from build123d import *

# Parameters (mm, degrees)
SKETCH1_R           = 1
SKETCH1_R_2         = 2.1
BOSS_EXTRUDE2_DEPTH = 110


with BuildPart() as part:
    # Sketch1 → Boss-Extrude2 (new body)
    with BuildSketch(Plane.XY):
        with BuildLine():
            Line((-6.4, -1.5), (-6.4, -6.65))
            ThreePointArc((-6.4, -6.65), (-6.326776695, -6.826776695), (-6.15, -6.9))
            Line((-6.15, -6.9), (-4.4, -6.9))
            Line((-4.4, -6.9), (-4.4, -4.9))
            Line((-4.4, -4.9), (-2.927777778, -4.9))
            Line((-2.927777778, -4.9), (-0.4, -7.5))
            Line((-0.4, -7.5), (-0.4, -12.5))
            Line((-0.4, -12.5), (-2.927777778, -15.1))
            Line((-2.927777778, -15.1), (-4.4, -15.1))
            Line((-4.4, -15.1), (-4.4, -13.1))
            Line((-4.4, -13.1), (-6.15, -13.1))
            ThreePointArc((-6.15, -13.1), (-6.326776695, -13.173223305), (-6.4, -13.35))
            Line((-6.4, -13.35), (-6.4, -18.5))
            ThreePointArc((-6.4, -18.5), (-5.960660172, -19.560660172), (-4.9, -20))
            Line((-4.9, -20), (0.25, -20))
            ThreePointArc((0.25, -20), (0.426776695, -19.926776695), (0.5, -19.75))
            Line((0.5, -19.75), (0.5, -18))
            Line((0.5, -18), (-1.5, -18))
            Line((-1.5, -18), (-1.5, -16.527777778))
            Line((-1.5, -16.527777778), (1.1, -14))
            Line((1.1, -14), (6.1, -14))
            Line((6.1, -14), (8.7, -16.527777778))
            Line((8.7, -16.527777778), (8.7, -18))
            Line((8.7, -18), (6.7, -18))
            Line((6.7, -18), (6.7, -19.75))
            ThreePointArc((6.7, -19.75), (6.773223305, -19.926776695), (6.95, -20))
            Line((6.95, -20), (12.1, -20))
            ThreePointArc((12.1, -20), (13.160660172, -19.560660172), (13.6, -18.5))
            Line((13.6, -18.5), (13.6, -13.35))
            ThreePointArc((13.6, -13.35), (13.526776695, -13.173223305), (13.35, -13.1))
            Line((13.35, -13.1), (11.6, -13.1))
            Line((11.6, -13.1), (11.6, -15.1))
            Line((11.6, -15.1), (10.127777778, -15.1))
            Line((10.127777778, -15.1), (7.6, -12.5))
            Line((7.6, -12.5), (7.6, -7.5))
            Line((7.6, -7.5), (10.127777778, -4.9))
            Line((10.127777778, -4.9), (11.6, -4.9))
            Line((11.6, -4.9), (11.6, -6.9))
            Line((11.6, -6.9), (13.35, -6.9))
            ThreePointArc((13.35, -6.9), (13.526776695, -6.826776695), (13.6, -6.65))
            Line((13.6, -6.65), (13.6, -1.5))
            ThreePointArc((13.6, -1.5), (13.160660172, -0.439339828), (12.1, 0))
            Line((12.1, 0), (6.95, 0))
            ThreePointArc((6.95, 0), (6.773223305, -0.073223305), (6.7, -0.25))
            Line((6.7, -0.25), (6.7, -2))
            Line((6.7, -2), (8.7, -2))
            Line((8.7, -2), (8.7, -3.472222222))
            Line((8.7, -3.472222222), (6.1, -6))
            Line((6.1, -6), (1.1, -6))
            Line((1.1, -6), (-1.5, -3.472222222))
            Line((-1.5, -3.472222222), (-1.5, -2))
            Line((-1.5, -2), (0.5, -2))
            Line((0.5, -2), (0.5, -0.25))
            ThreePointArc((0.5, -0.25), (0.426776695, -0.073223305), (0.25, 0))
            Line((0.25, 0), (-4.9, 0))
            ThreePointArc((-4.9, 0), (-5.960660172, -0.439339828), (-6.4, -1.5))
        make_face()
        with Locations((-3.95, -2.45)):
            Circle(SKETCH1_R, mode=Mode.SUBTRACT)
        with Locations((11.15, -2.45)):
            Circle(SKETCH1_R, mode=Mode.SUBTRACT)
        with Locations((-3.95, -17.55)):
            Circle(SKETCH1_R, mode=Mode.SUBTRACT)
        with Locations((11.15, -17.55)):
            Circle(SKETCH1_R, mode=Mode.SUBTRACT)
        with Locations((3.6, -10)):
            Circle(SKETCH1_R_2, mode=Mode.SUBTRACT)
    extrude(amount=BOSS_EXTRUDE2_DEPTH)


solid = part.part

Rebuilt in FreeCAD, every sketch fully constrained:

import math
import FreeCAD as App
import Part
import Sketcher

V = App.Vector
Q = App.Units.Quantity

doc = App.newDocument("Part")
body = doc.addObject("PartDesign::Body", "Body")

sketch1 = body.newObject("Sketcher::SketchObject", "Sketch")
sketch1.AttachmentSupport = (doc.getObject("XY_Plane"), [""])
sketch1.MapMode = "FlatFace"
sketch1.addGeometry([
    Part.LineSegment(V(-6.4, -1.5, 0), V(-6.4, -6.65, 0)),
    Part.ArcOfCircle(Part.Circle(V(-6.15, -6.65, 0), V(0, 0, 1), 0.25), math.radians(-180), math.radians(-90)),
    Part.LineSegment(V(-6.15, -6.9, 0), V(-4.4, -6.9, 0)),
    Part.LineSegment(V(-4.4, -6.9, 0), V(-4.4, -4.9, 0)),
    Part.LineSegment(V(-4.4, -4.9, 0), V(-2.93, -4.9, 0)),
    Part.LineSegment(V(-2.93, -4.9, 0), V(-0.4, -7.5, 0)),
    Part.LineSegment(V(-0.4, -7.5, 0), V(-0.4, -12.5, 0)),
    Part.LineSegment(V(-0.4, -12.5, 0), V(-2.93, -15.1, 0)),
    Part.LineSegment(V(-2.93, -15.1, 0), V(-4.4, -15.1, 0)),
    Part.LineSegment(V(-4.4, -15.1, 0), V(-4.4, -13.1, 0)),
    Part.LineSegment(V(-4.4, -13.1, 0), V(-6.15, -13.1, 0)),
    Part.ArcOfCircle(Part.Circle(V(-6.15, -13.35, 0), V(0, 0, 1), 0.25), math.radians(90), math.radians(180)),
    Part.LineSegment(V(-6.4, -13.35, 0), V(-6.4, -18.5, 0)),
    Part.ArcOfCircle(Part.Circle(V(-4.9, -18.5, 0), V(0, 0, 1), 1.5), math.radians(180), math.radians(270)),
    Part.LineSegment(V(-4.9, -20, 0), V(0.25, -20, 0)),
    Part.ArcOfCircle(Part.Circle(V(0.25, -19.75, 0), V(0, 0, 1), 0.25), math.radians(-90), math.radians(0)),
    Part.LineSegment(V(0.5, -19.75, 0), V(0.5, -18, 0)),
    Part.LineSegment(V(0.5, -18, 0), V(-1.5, -18, 0)),
    Part.LineSegment(V(-1.5, -18, 0), V(-1.5, -16.53, 0)),
    Part.LineSegment(V(-1.5, -16.53, 0), V(1.1, -14, 0)),
    Part.LineSegment(V(1.1, -14, 0), V(6.1, -14, 0)),
    Part.LineSegment(V(6.1, -14, 0), V(8.7, -16.53, 0)),
    Part.LineSegment(V(8.7, -16.53, 0), V(8.7, -18, 0)),
    Part.LineSegment(V(8.7, -18, 0), V(6.7, -18, 0)),
    Part.LineSegment(V(6.7, -18, 0), V(6.7, -19.75, 0)),
    Part.ArcOfCircle(Part.Circle(V(6.95, -19.75, 0), V(0, 0, 1), 0.25), math.radians(-180), math.radians(-90)),
    Part.LineSegment(V(6.95, -20, 0), V(12.1, -20, 0)),
    Part.ArcOfCircle(Part.Circle(V(12.1, -18.5, 0), V(0, 0, 1), 1.5), math.radians(-90), math.radians(0)),
    Part.LineSegment(V(13.6, -18.5, 0), V(13.6, -13.35, 0)),
    Part.ArcOfCircle(Part.Circle(V(13.35, -13.35, 0), V(0, 0, 1), 0.25), math.radians(0), math.radians(90)),
    Part.LineSegment(V(13.35, -13.1, 0), V(11.6, -13.1, 0)),
    Part.LineSegment(V(11.6, -13.1, 0), V(11.6, -15.1, 0)),
    Part.LineSegment(V(11.6, -15.1, 0), V(10.13, -15.1, 0)),
    Part.LineSegment(V(10.13, -15.1, 0), V(7.6, -12.5, 0)),
    Part.LineSegment(V(7.6, -12.5, 0), V(7.6, -7.5, 0)),
    Part.LineSegment(V(7.6, -7.5, 0), V(10.13, -4.9, 0)),
    Part.LineSegment(V(10.13, -4.9, 0), V(11.6, -4.9, 0)),
    Part.LineSegment(V(11.6, -4.9, 0), V(11.6, -6.9, 0)),
    Part.LineSegment(V(11.6, -6.9, 0), V(13.35, -6.9, 0)),
    Part.ArcOfCircle(Part.Circle(V(13.35, -6.65, 0), V(0, 0, 1), 0.25), math.radians(-90), math.radians(0)),
    Part.LineSegment(V(13.6, -6.65, 0), V(13.6, -1.5, 0)),
    Part.ArcOfCircle(Part.Circle(V(12.1, -1.5, 0), V(0, 0, 1), 1.5), math.radians(0), math.radians(90)),
    Part.LineSegment(V(12.1, 0, 0), V(6.95, 0, 0)),
    Part.ArcOfCircle(Part.Circle(V(6.95, -0.25, 0), V(0, 0, 1), 0.25), math.radians(90), math.radians(180)),
    Part.LineSegment(V(6.7, -0.25, 0), V(6.7, -2, 0)),
    Part.LineSegment(V(6.7, -2, 0), V(8.7, -2, 0)),
    Part.LineSegment(V(8.7, -2, 0), V(8.7, -3.47, 0)),
    Part.LineSegment(V(8.7, -3.47, 0), V(6.1, -6, 0)),
    Part.LineSegment(V(6.1, -6, 0), V(1.1, -6, 0)),
    Part.LineSegment(V(1.1, -6, 0), V(-1.5, -3.47, 0)),
    Part.LineSegment(V(-1.5, -3.47, 0), V(-1.5, -2, 0)),
    Part.LineSegment(V(-1.5, -2, 0), V(0.5, -2, 0)),
    Part.LineSegment(V(0.5, -2, 0), V(0.5, -0.25, 0)),
    Part.ArcOfCircle(Part.Circle(V(0.25, -0.25, 0), V(0, 0, 1), 0.25), math.radians(0), math.radians(90)),
    Part.LineSegment(V(0.25, 0, 0), V(-4.9, 0, 0)),
    Part.ArcOfCircle(Part.Circle(V(-4.9, -1.5, 0), V(0, 0, 1), 1.5), math.radians(90), math.radians(180)),
    Part.Circle(V(-3.95, -17.55, 0), V(0, 0, 1), 1),
    Part.Circle(V(11.15, -17.55, 0), V(0, 0, 1), 1),
    Part.Circle(V(3.6, -10, 0), V(0, 0, 1), 2.1),
    Part.Circle(V(-3.95, -2.45, 0), V(0, 0, 1), 1),
    Part.Circle(V(11.15, -2.45, 0), V(0, 0, 1), 1),
], False)
sketch1.addConstraint([
    Sketcher.Constraint("Tangent", 0, 2, 1, 1),
    Sketcher.Constraint("Tangent", 1, 2, 2, 1),
    Sketcher.Constraint("Coincident", 2, 2, 3, 1),
    Sketcher.Constraint("Coincident", 3, 2, 4, 1),
    Sketcher.Constraint("Coincident", 4, 2, 5, 1),
    Sketcher.Constraint("Coincident", 5, 2, 6, 1),
    Sketcher.Constraint("Coincident", 6, 2, 7, 1),
    Sketcher.Constraint("Coincident", 7, 2, 8, 1),
    Sketcher.Constraint("Coincident", 8, 2, 9, 1),
    Sketcher.Constraint("Coincident", 9, 2, 10, 1),
    Sketcher.Constraint("Tangent", 10, 2, 11, 1),
    Sketcher.Constraint("Tangent", 11, 2, 12, 1),
    Sketcher.Constraint("Tangent", 12, 2, 13, 1),
    Sketcher.Constraint("Tangent", 13, 2, 14, 1),
    Sketcher.Constraint("Tangent", 14, 2, 15, 1),
    Sketcher.Constraint("Tangent", 15, 2, 16, 1),
    Sketcher.Constraint("Coincident", 16, 2, 17, 1),
    Sketcher.Constraint("Coincident", 17, 2, 18, 1),
    Sketcher.Constraint("Coincident", 18, 2, 19, 1),
    Sketcher.Constraint("Coincident", 19, 2, 20, 1),
    Sketcher.Constraint("Coincident", 20, 2, 21, 1),
    Sketcher.Constraint("Coincident", 21, 2, 22, 1),
    Sketcher.Constraint("Coincident", 22, 2, 23, 1),
    Sketcher.Constraint("Coincident", 23, 2, 24, 1),
    Sketcher.Constraint("Tangent", 24, 2, 25, 1),
    Sketcher.Constraint("Tangent", 25, 2, 26, 1),
    Sketcher.Constraint("Tangent", 26, 2, 27, 1),
    Sketcher.Constraint("Tangent", 27, 2, 28, 1),
    Sketcher.Constraint("Tangent", 28, 2, 29, 1),
    Sketcher.Constraint("Tangent", 29, 2, 30, 1),
    Sketcher.Constraint("Coincident", 30, 2, 31, 1),
    Sketcher.Constraint("Coincident", 31, 2, 32, 1),
    Sketcher.Constraint("Coincident", 32, 2, 33, 1),
    Sketcher.Constraint("Coincident", 33, 2, 34, 1),
    Sketcher.Constraint("Coincident", 34, 2, 35, 1),
    Sketcher.Constraint("Coincident", 35, 2, 36, 1),
    Sketcher.Constraint("Coincident", 36, 2, 37, 1),
    Sketcher.Constraint("Coincident", 37, 2, 38, 1),
    Sketcher.Constraint("Tangent", 38, 2, 39, 1),
    Sketcher.Constraint("Tangent", 39, 2, 40, 1),
    Sketcher.Constraint("Tangent", 40, 2, 41, 1),
    Sketcher.Constraint("Tangent", 41, 2, 42, 1),
    Sketcher.Constraint("Tangent", 42, 2, 43, 1),
    Sketcher.Constraint("Tangent", 43, 2, 44, 1),
    Sketcher.Constraint("Coincident", 44, 2, 45, 1),
    Sketcher.Constraint("Coincident", 45, 2, 46, 1),
    Sketcher.Constraint("Coincident", 46, 2, 47, 1),
    Sketcher.Constraint("Coincident", 47, 2, 48, 1),
    Sketcher.Constraint("Coincident", 48, 2, 49, 1),
    Sketcher.Constraint("Coincident", 49, 2, 50, 1),
    Sketcher.Constraint("Coincident", 50, 2, 51, 1),
    Sketcher.Constraint("Coincident", 51, 2, 52, 1),
    Sketcher.Constraint("Tangent", 52, 2, 53, 1),
    Sketcher.Constraint("Tangent", 53, 2, 54, 1),
    Sketcher.Constraint("Tangent", 54, 2, 55, 1),
    Sketcher.Constraint("Tangent", 55, 2, 0, 1),
    Sketcher.Constraint("Vertical", 0),
    Sketcher.Constraint("Horizontal", 2),
    Sketcher.Constraint("Vertical", 3),
    Sketcher.Constraint("Horizontal", 4),
    Sketcher.Constraint("Vertical", 6),
    Sketcher.Constraint("Horizontal", 8),
    Sketcher.Constraint("Vertical", 9),
    Sketcher.Constraint("Horizontal", 10),
    Sketcher.Constraint("Vertical", 12),
    Sketcher.Constraint("Horizontal", 14),
    Sketcher.Constraint("Vertical", 16),
    Sketcher.Constraint("Horizontal", 17),
    Sketcher.Constraint("Vertical", 18),
    Sketcher.Constraint("Horizontal", 20),
    Sketcher.Constraint("Vertical", 22),
    Sketcher.Constraint("Horizontal", 23),
    Sketcher.Constraint("Vertical", 24),
    Sketcher.Constraint("Horizontal", 26),
    Sketcher.Constraint("Vertical", 28),
    Sketcher.Constraint("Horizontal", 30),
    Sketcher.Constraint("Vertical", 31),
    Sketcher.Constraint("Horizontal", 32),
    Sketcher.Constraint("Vertical", 34),
    Sketcher.Constraint("Horizontal", 36),
    Sketcher.Constraint("Vertical", 37),
    Sketcher.Constraint("Horizontal", 38),
    Sketcher.Constraint("Vertical", 40),
    Sketcher.Constraint("Horizontal", 42),
    Sketcher.Constraint("Vertical", 44),
    Sketcher.Constraint("Horizontal", 45),
    Sketcher.Constraint("Vertical", 46),
    Sketcher.Constraint("Horizontal", 48),
    Sketcher.Constraint("Vertical", 50),
    Sketcher.Constraint("Horizontal", 51),
    Sketcher.Constraint("Vertical", 52),
    Sketcher.Constraint("Horizontal", 54),
    Sketcher.Constraint("Equal", 1, 11),
    Sketcher.Constraint("Equal", 11, 15),
    Sketcher.Constraint("Equal", 15, 25),
    Sketcher.Constraint("Equal", 13, 27),
    Sketcher.Constraint("Equal", 25, 29),
    Sketcher.Constraint("Equal", 29, 39),
    Sketcher.Constraint("Equal", 27, 41),
    Sketcher.Constraint("Equal", 39, 43),
    Sketcher.Constraint("Equal", 43, 53),
    Sketcher.Constraint("Equal", 41, 55),
    Sketcher.Constraint("Equal", 56, 57),
    Sketcher.Constraint("Equal", 57, 59),
    Sketcher.Constraint("Equal", 59, 60),
    Sketcher.Constraint("PointOnObject", 41, 2, -1),
    Sketcher.Constraint("PointOnObject", 53, 2, -1),
    Sketcher.Constraint("Perpendicular", 5, 19),
    Sketcher.Constraint("Perpendicular", 7, 21),
    Sketcher.Constraint("Perpendicular", 19, 33),
    Sketcher.Constraint("Perpendicular", 21, 35),
    Sketcher.Constraint("Perpendicular", 33, 47),
    Sketcher.Constraint("Perpendicular", 35, 49),
    Sketcher.Constraint("Horizontal", 15, 3, 25, 3),
    Sketcher.Constraint("Horizontal", 11, 3, 29, 3),
    Sketcher.Constraint("Horizontal", 1, 3, 39, 3),
    Sketcher.Constraint("Horizontal", 56, 3, 57, 3),
    Sketcher.Constraint("Horizontal", 59, 3, 60, 3),
    Sketcher.Constraint("Horizontal", 18, 2, 21, 2),
    Sketcher.Constraint("Horizontal", 17, 2, 22, 2),
    Sketcher.Constraint("Horizontal", 8, 2, 31, 2),
    Sketcher.Constraint("Horizontal", 6, 2, 33, 2),
    Sketcher.Constraint("Horizontal", 5, 2, 34, 2),
    Sketcher.Constraint("Horizontal", 4, 2, 35, 2),
    Sketcher.Constraint("Horizontal", 46, 2, 49, 2),
    Sketcher.Constraint("Horizontal", 45, 2, 50, 2),
    Sketcher.Constraint("Vertical", 1, 3, 11, 3),
    Sketcher.Constraint("Vertical", 29, 3, 39, 3),
    Sketcher.Constraint("Vertical", 25, 3, 43, 3),
    Sketcher.Constraint("Vertical", 15, 3, 53, 3),
    Sketcher.Constraint("Vertical", 56, 3, 59, 3),
    Sketcher.Constraint("Vertical", 57, 3, 60, 3),
    Sketcher.Constraint("Vertical", 4, 2, 7, 2),
    Sketcher.Constraint("Vertical", 3, 2, 8, 2),
    Sketcher.Constraint("Vertical", 32, 2, 35, 2),
    Sketcher.Constraint("Vertical", 31, 2, 36, 2),
    Sketcher.Constraint("Vertical", 22, 2, 45, 2),
    Sketcher.Constraint("Vertical", 20, 2, 47, 2),
    Sketcher.Constraint("Vertical", 19, 2, 48, 2),
    Sketcher.Constraint("Equal", 17, 23),
    Sketcher.Constraint("Equal", 14, 26),
    Sketcher.Constraint("Equal", 10, 30),
    Sketcher.Constraint("Equal", 8, 32),
    Sketcher.Constraint("Equal", 54, 0),
    Sketcher.Constraint("Equal", 51, 3),
    Sketcher.Constraint("Equal", 48, 6),
    Sketcher.Constraint("Equal", 3, 9),
    Sketcher.Constraint("Equal", 0, 12),
    Sketcher.Constraint("Equal", 38, 16),
    Sketcher.Constraint("Equal", 36, 18),
    Sketcher.Constraint("Equal", 24, 44),
    Sketcher.Constraint("Equal", 22, 46),
    Sketcher.Constraint("Equal", 7, 19),
    Sketcher.Constraint("Diameter", 56, Q("2 mm")),
    Sketcher.Constraint("Diameter", 58, Q("4.2 mm")),
    Sketcher.Constraint("Radius", 13, Q("1.5 mm")),
    Sketcher.Constraint("DistanceX", 17, 2, 17, 1, Q("2 mm")),
    Sketcher.Constraint("DistanceX", 20, 1, 20, 2, Q("5 mm")),
    Sketcher.Constraint("Radius", 1, Q("0.25 mm")),
    Sketcher.Constraint("DistanceY", 58, 3, -1, 1, Q("10 mm")),
    Sketcher.Constraint("DistanceY", 13, 2, -1, 1, Q("20 mm")),
    Sketcher.Constraint("DistanceY", 16, 2, -1, 1, Q("18 mm")),
    Sketcher.Constraint("DistanceY", 19, 2, -1, 1, Q("14 mm")),
    Sketcher.Constraint("DistanceX", 14, 1, 14, 2, Q("5.15 mm")),
    Sketcher.Constraint("DistanceX", 13, 3, -1, 1, Q("4.9 mm")),
    Sketcher.Constraint("DistanceX", -1, 1, 58, 3, Q("3.6 mm")),
    Sketcher.Constraint("DistanceX", 56, 3, -1, 1, Q("3.95 mm")),
    Sketcher.Constraint("DistanceY", 56, 3, -1, 1, Q("17.55 mm")),
    Sketcher.Constraint("DistanceX", -1, 1, 57, 3, Q("11.15 mm")),
    Sketcher.Constraint("DistanceY", 59, 3, -1, 1, Q("2.45 mm")),
    Sketcher.Constraint("DistanceX", 4, 1, 4, 2, Q("1.472222 mm")),
])
pad1 = body.newObject("PartDesign::Pad", "Pad")
pad1.Profile = sketch1
pad1.Length = 110

doc.recompute()
